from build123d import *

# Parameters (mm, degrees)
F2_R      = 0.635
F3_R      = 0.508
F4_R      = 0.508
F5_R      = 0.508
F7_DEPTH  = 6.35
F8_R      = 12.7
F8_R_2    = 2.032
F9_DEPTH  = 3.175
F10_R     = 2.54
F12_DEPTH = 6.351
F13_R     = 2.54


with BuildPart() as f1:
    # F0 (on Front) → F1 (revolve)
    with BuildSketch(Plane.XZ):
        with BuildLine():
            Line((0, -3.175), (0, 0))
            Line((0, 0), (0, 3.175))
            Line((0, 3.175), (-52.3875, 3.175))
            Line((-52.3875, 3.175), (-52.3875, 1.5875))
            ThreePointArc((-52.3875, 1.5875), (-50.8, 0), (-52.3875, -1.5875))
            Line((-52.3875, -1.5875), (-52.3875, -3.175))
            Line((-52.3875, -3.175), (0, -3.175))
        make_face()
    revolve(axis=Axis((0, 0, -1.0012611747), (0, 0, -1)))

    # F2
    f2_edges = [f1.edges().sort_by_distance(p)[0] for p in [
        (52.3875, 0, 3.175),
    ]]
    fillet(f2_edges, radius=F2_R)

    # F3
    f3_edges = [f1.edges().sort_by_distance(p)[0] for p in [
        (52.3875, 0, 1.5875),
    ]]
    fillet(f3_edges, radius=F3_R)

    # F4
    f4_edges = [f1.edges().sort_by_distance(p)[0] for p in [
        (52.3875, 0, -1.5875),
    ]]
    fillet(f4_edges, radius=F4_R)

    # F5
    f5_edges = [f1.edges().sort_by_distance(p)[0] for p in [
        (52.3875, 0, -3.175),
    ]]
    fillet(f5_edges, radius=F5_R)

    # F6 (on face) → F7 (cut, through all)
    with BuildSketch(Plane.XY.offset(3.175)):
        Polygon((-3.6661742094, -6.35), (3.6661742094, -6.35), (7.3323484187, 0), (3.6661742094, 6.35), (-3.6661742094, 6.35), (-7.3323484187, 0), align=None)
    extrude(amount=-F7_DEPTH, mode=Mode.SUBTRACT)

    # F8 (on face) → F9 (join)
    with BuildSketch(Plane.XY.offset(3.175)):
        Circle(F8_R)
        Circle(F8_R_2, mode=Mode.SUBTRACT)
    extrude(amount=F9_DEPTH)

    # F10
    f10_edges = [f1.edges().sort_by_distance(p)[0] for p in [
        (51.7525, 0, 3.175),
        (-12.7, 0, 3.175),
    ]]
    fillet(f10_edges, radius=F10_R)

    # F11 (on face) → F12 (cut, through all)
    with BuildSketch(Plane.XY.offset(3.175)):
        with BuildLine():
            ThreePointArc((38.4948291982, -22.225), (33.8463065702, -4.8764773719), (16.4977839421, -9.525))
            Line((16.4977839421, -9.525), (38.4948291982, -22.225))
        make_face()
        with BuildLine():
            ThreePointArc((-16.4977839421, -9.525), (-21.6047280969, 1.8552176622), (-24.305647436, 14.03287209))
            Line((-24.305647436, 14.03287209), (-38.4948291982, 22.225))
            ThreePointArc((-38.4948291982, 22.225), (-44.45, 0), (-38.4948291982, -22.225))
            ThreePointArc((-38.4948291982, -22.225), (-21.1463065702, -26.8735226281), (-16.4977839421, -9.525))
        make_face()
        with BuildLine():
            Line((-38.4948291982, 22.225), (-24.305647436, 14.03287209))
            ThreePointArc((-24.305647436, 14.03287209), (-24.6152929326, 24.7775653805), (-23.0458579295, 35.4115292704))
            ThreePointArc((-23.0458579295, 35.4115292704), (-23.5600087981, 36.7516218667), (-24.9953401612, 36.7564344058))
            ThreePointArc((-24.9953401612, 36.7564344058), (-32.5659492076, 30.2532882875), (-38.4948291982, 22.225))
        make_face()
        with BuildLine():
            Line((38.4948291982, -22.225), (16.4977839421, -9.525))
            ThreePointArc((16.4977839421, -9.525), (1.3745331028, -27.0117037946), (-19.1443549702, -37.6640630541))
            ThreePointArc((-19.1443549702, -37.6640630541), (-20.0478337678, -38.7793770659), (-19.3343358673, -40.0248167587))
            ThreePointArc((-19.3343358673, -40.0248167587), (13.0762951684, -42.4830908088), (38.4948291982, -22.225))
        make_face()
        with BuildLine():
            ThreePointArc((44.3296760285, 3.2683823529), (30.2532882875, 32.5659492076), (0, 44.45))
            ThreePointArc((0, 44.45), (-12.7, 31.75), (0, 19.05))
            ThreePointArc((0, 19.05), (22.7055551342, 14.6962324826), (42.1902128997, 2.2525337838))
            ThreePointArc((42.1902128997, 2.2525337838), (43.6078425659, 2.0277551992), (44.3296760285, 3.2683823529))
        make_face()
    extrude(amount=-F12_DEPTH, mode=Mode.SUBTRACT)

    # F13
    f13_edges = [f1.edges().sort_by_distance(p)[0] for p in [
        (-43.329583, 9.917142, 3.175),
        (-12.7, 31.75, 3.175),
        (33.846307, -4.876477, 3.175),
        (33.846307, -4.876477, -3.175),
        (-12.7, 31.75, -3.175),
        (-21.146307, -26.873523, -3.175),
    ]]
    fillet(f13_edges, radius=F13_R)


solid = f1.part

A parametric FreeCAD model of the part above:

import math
import FreeCAD as App
import Part
import Sketcher
Q = App.Units.Quantity


def edges_at(feature, points):
    """Names of the edges that pass closest to the given points."""
    edges = feature.Shape.Edges
    near = lambda p: min(range(len(edges)), key=lambda i: edges[i].distToShape(Part.Vertex(*p))[0])
    return sorted({f"Edge{near(p) + 1}" for p in points})


def add_polygon(sketch, points):
    """Adds a closed chain of lines whose ends are joined by coincident constraints."""
    first, n = sketch.GeometryCount, len(points)
    for a, b in zip(points, points[1:] + points[:1]):
        sketch.addGeometry(Part.LineSegment(App.Vector(*a, 0), App.Vector(*b, 0)), False)
    for i in range(n):
        sketch.addConstraint(Sketcher.Constraint("Coincident", first + i, 2, first + (i + 1) % n, 1))

doc = App.newDocument("Part")
params = doc.addObject("Spreadsheet::Sheet", "Params")
for row, (alias, value) in enumerate([
    ("sketch1_radius", "0.0625 in"),
    ("sketch1_height", "0.25 in"),
    ("sketch1_width", "2.0625 in"),
    ("revolution_angle", "360 deg"),
    ("fillet_radius", "0.025 in"),
    ("fillet2_radius", "0.02 in"),
    ("fillet3_radius", "0.02 in"),
    ("fillet4_radius", "0.02 in"),
    ("sketch3_diameter", "1 in"),
    ("sketch3_diameter2", "0.16 in"),
    ("pad1_length", "0.125 in"),
    ("fillet5_radius", "0.1 in"),
    ("sketch4_radius", "0.5 in"),
    ("sketch4_radius2", "0.05 in"),
    ("sketch4_radius3", "1.75 in"),
    ("fillet6_radius", "0.1 in"),
], start=1):
    params.set(f"A{row}", alias)
    params.set(f"B{row}", "=" + value)
    params.setAlias(f"B{row}", alias)

body = doc.addObject("PartDesign::Body", "Body")

# Sketch on XZ plane
sketch1 = body.newObject("Sketcher::SketchObject", "Sketch")
sketch1.AttachmentSupport = (doc.getObject("XZ_Plane"), [""])
sketch1.MapMode = "FlatFace"
sketch1.addGeometry(Part.LineSegment(App.Vector(0, -3.2, 0), App.Vector(0, 3.2, 0)), False)
sketch1.addGeometry(Part.LineSegment(App.Vector(0, 3.2, 0), App.Vector(-52.4, 3.2, 0)), False)
sketch1.addGeometry(Part.LineSegment(App.Vector(-52.4, 3.2, 0), App.Vector(-52.4, 1.6, 0)), False)
sketch1.addGeometry(Part.ArcOfCircle(Part.Circle(App.Vector(-52.4, 0, 0), App.Vector(0, 0, 1), 1.6), math.radians(-90), math.radians(90)), False)
sketch1.addGeometry(Part.LineSegment(App.Vector(-52.4, -1.6, 0), App.Vector(-52.4, -3.2, 0)), False)
sketch1.addGeometry(Part.LineSegment(App.Vector(-52.4, -3.2, 0), App.Vector(0, -3.2, 0)), False)
sketch1.addConstraint(Sketcher.Constraint("Coincident", 0, 2, 1, 1))
sketch1.addConstraint(Sketcher.Constraint("Coincident", 1, 2, 2, 1))
sketch1.addConstraint(Sketcher.Constraint("Coincident", 2, 2, 3, 2))
sketch1.addConstraint(Sketcher.Constraint("Coincident", 3, 1, 4, 1))
sketch1.addConstraint(Sketcher.Constraint("Coincident", 4, 2, 5, 1))
sketch1.addConstraint(Sketcher.Constraint("Coincident", 5, 2, 0, 1))
sketch1.addConstraint(Sketcher.Constraint("Vertical", 0))
sketch1.addConstraint(Sketcher.Constraint("Horizontal", 1))
sketch1.addConstraint(Sketcher.Constraint("Vertical", 2))
sketch1.addConstraint(Sketcher.Constraint("Vertical", 4))
sketch1.addConstraint(Sketcher.Constraint("Horizontal", 5))
sketch1.addConstraint(Sketcher.Constraint("Symmetric", 0, 2, 5, 2, -1, 1))
sketch1.addConstraint(Sketcher.Constraint("Symmetric", 2, 2, 3, 1, -1))
sketch1.addConstraint(Sketcher.Constraint("Vertical", 3, 3, 1, 2))
sketch1.addConstraint(Sketcher.Constraint("Radius", 3, Q("0.0625 in")))
sketch1.addConstraint(Sketcher.Constraint("DistanceY", 0, 1, 0, 2, Q("0.25 in")))
sketch1.addConstraint(Sketcher.Constraint("DistanceX", 1, 2, 1, 1, Q("2.0625 in")))
sketch1.setExpression("Constraints[14]", "Params.sketch1_radius")
sketch1.setExpression("Constraints[15]", "Params.sketch1_height")
sketch1.setExpression("Constraints[16]", "Params.sketch1_width")
revolution = body.newObject("PartDesign::Revolution", "Revolution")
revolution.Profile = sketch1
revolution.ReferenceAxis = (sketch1, ["V_Axis"])
revolution.setExpression("Angle", "Params.revolution_angle")
doc.recompute()

fillet = body.newObject("PartDesign::Fillet", "Fillet")
fillet.Base = (revolution, edges_at(revolution, [(52.388, 0, 3.175)]))
fillet.setExpression("Radius", "Params.fillet_radius")
doc.recompute()

fillet2 = body.newObject("PartDesign::Fillet", "Fillet001")
fillet2.Base = (fillet, edges_at(fillet, [(52.388, 0, 1.587)]))
fillet2.setExpression("Radius", "Params.fillet2_radius")
doc.recompute()

fillet3 = body.newObject("PartDesign::Fillet", "Fillet002")
fillet3.Base = (fillet2, edges_at(fillet2, [(52.388, 0, -1.587)]))
fillet3.setExpression("Radius", "Params.fillet3_radius")
doc.recompute()

fillet4 = body.newObject("PartDesign::Fillet", "Fillet003")
fillet4.Base = (fillet3, edges_at(fillet3, [(52.388, 0, -3.175)]))
fillet4.setExpression("Radius", "Params.fillet4_radius")

# Sketch on XY plane
sketch2 = body.newObject("Sketcher::SketchObject", "Sketch001")
sketch2.AttachmentSupport = (doc.getObject("XY_Plane"), [""])
sketch2.MapMode = "FlatFace"
sketch2.AttachmentOffset = App.Placement(App.Vector(0, 0, 0.125 * 25.4), App.Rotation())
add_polygon(sketch2, [(-4, -6), (4, -6), (7, 0), (4, 6), (-4, 6), (-7, 0)])  # lines 0-5
sketch2.addConstraint(Sketcher.Constraint("Horizontal", 0))
sketch2.addConstraint(Sketcher.Constraint("Horizontal", 3))
sketch2.addConstraint(Sketcher.Constraint("Symmetric", 0, 2, 3, 2, -1, 1))
sketch2.addConstraint(Sketcher.Constraint("Symmetric", 1, 2, 4, 2, -1, 1))
sketch2.addConstraint(Sketcher.Constraint("PointOnObject", 1, 2, -1))
sketch2.addConstraint(Sketcher.Constraint("Parallel", 2, 5))
sketch2.addConstraint(Sketcher.Constraint("Vertical", 0, 2, 2, 2))
sketch2.addConstraint(Sketcher.Constraint("Angle", 1, Q("60 deg")))
sketch2.addConstraint(Sketcher.Constraint("DistanceY", 0, 2, 2, 2, Q("0.5 in")))
sketch2.addConstraint(Sketcher.Constraint("DistanceX", 0, 1, 0, 2, Q("7.332348 mm")))
pocket1 = body.newObject("PartDesign::Pocket", "Pocket")
pocket1.Profile = sketch2
pocket1.Type = "ThroughAll"

# Sketch on XY plane
sketch3 = body.newObject("Sketcher::SketchObject", "Sketch002")
sketch3.AttachmentSupport = (doc.getObject("XY_Plane"), [""])
sketch3.MapMode = "FlatFace"
sketch3.AttachmentOffset = App.Placement(App.Vector(0, 0, 0.125 * 25.4), App.Rotation())
sketch3.addGeometry(Part.Circle(App.Vector(0, 0, 0), App.Vector(0, 0, 1), 12.7), False)
sketch3.addGeometry(Part.Circle(App.Vector(0, 0, 0), App.Vector(0, 0, 1), 2), False)
sketch3.addConstraint(Sketcher.Constraint("Coincident", 0, 3, -1, 1))
sketch3.addConstraint(Sketcher.Constraint("Coincident", 1, 3, -1, 1))
sketch3.addConstraint(Sketcher.Constraint("Diameter", 0, Q("1 in")))
sketch3.addConstraint(Sketcher.Constraint("Diameter", 1, Q("0.16 in")))
sketch3.setExpression("Constraints[2]", "Params.sketch3_diameter")
sketch3.setExpression("Constraints[3]", "Params.sketch3_diameter2")
pad1 = body.newObject("PartDesign::Pad", "Pad")
pad1.Profile = sketch3
pad1.setExpression("Length", "Params.pad1_length")
doc.recompute()

fillet5 = body.newObject("PartDesign::Fillet", "Fillet004")
fillet5.Base = (pad1, edges_at(pad1, [(51.752, 0, 3.175), (-12.7, 0, 3.175)]))
fillet5.setExpression("Radius", "Params.fillet5_radius")

# Sketch on XY plane
sketch4 = body.newObject("Sketcher::SketchObject", "Sketch003")
sketch4.AttachmentSupport = (doc.getObject("XY_Plane"), [""])
sketch4.MapMode = "FlatFace"
sketch4.AttachmentOffset = App.Placement(App.Vector(0, 0, 0.125 * 25.4), App.Rotation())
sketch4.addGeometry(Part.ArcOfCircle(Part.Circle(App.Vector(27.5, -15.9, 0), App.Vector(0, 0, 1), 12.7), math.radians(-30), math.radians(150)), False)
sketch4.addGeometry(Part.ArcOfCircle(Part.Circle(App.Vector(-36.7, 21.2, 0), App.Vector(0, 0, 1), 61.4), math.radians(-73), math.radians(-30)), False)
sketch4.addGeometry(Part.ArcOfCircle(Part.Circle(App.Vector(-18.8, -38.9, 0), App.Vector(0, 0, 1), 1.3), math.radians(107), math.radians(244)), False)
sketch4.addGeometry(Part.ArcOfCircle(Part.Circle(App.Vector(0, 0, 0), App.Vector(0, 0, 1), 44.5), math.radians(-116), math.radians(-30)), False)
sketch4.addGeometry(Part.ArcOfCircle(Part.Circle(App.Vector(36.7, 21.2, 0), App.Vector(0, 0, 1), 61.4), math.radians(-173), math.radians(-150)), False)
sketch4.addGeometry(Part.ArcOfCircle(Part.Circle(App.Vector(36.7, 21.2, 0), App.Vector(0, 0, 1), 61.4), math.radians(167), math.radians(187)), False)
sketch4.addGeometry(Part.ArcOfCircle(Part.Circle(App.Vector(-24.3, 35.7, 0), App.Vector(0, 0, 1), 1.3), math.radians(-13), math.radians(124)), False)
sketch4.addGeometry(Part.ArcOfCircle(Part.Circle(App.Vector(0, 0, 0), App.Vector(0, 0, 1), 44.5), math.radians(124), math.radians(210)), False)
sketch4.addGeometry(Part.ArcOfCircle(Part.Circle(App.Vector(-27.5, -15.9, 0), App.Vector(0, 0, 1), 12.7), math.radians(-150), math.radians(30)), False)
sketch4.addGeometry(Part.ArcOfCircle(Part.Circle(App.Vector(0, 0, 0), App.Vector(0, 0, 1), 44.5), math.radians(4), math.radians(90)), False)
sketch4.addGeometry(Part.ArcOfCircle(Part.Circle(App.Vector(0, 31.8, 0), App.Vector(0, 0, 1), 12.7), math.radians(90), math.radians(270)), False)
sketch4.addGeometry(Part.ArcOfCircle(Part.Circle(App.Vector(0, -42.3, 0), App.Vector(0, 0, 1), 61.4), math.radians(47), math.radians(90)), False)
sketch4.addGeometry(Part.ArcOfCircle(Part.Circle(App.Vector(43.1, 3.2, 0), App.Vector(0, 0, 1), 1.3), math.radians(-133), math.radians(4)), False)
sketch4.addConstraint(Sketcher.Constraint("Tangent", 0, 2, 1, 2))
sketch4.addConstraint(Sketcher.Constraint("Tangent", 1, 1, 2, 1))
sketch4.addConstraint(Sketcher.Constraint("Tangent", 2, 2, 3, 1))
sketch4.addConstraint(Sketcher.Constraint("Tangent", 3, 2, 0, 1))
sketch4.addConstraint(Sketcher.Constraint("Tangent", 4, 1, 5, 2))
sketch4.addConstraint(Sketcher.Constraint("Tangent", 5, 1, 6, 1))
sketch4.addConstraint(Sketcher.Constraint("Tangent", 6, 2, 7, 1))
sketch4.addConstraint(Sketcher.Constraint("Tangent", 7, 2, 8, 1))
sketch4.addConstraint(Sketcher.Constraint("Tangent", 8, 2, 4, 2))
sketch4.addConstraint(Sketcher.Constraint("Tangent", 9, 2, 10, 1))
sketch4.addConstraint(Sketcher.Constraint("Tangent", 10, 2, 11, 2))
sketch4.addConstraint(Sketcher.Constraint("Tangent", 11, 1, 12, 1))
sketch4.addConstraint(Sketcher.Constraint("Tangent", 12, 2, 9, 1))
sketch4.addConstraint(Sketcher.Constraint("Coincident", 3, 3, -1, 1))
sketch4.addConstraint(Sketcher.Constraint("Coincident", 7, 3, -1, 1))
sketch4.addConstraint(Sketcher.Constraint("Coincident", 9, 3, -1, 1))
sketch4.addConstraint(Sketcher.Constraint("Equal", 1, 4))
sketch4.addConstraint(Sketcher.Constraint("Equal", 4, 5))
sketch4.addConstraint(Sketcher.Constraint("Equal", 2, 6))
sketch4.addConstraint(Sketcher.Constraint("Equal", 3, 7))
sketch4.addConstraint(Sketcher.Constraint("Equal", 0, 8))
sketch4.addConstraint(Sketcher.Constraint("Equal", 7, 9))
sketch4.addConstraint(Sketcher.Constraint("Equal", 8, 10))
sketch4.addConstraint(Sketcher.Constraint("Equal", 5, 11))
sketch4.addConstraint(Sketcher.Constraint("Equal", 6, 12))
sketch4.addConstraint(Sketcher.Constraint("PointOnObject", 10, 3, -2))
sketch4.addConstraint(Sketcher.Constraint("PointOnObject", 11, 3, -2))
sketch4.addConstraint(Sketcher.Constraint("Horizontal", 1, 3, 4, 3))
sketch4.addConstraint(Sketcher.Constraint("Horizontal", 0, 3, 8, 3))
sketch4.addConstraint(Sketcher.Constraint("Radius", 0, Q("0.5 in")))
sketch4.addConstraint(Sketcher.Constraint("Radius", 2, Q("0.05 in")))
sketch4.addConstraint(Sketcher.Constraint("Radius", 3, Q("1.75 in")))
sketch4.addConstraint(Sketcher.Constraint("DistanceY", 3, 2, 12, 3, Q("1 in")))
sketch4.addConstraint(Sketcher.Constraint("DistanceY", 0, 2, 12, 3, Q("0.5 in")))
sketch4.addConstraint(Sketcher.Constraint("DistanceY", 0, 3, 12, 3, Q("0.75 in")))
sketch4.addConstraint(Sketcher.Constraint("DistanceX", 4, 1, 6, 3, Q("0.02446 mm")))
sketch4.setExpression("Constraints[29]", "Params.sketch4_radius")
sketch4.setExpression("Constraints[30]", "Params.sketch4_radius2")
sketch4.setExpression("Constraints[31]", "Params.sketch4_radius3")
pocket2 = body.newObject("PartDesign::Pocket", "Pocket001")
pocket2.Profile = sketch4
pocket2.Type = "ThroughAll"
doc.recompute()

fillet6 = body.newObject("PartDesign::Fillet", "Fillet005")
fillet6.Base = (pocket2, edges_at(pocket2, [
    (-43.33, 9.917, 3.175),
    (-12.7, 31.75, 3.175),
    (33.846, -4.876, 3.175),
    (33.846, -4.876, -3.175),
    (-12.7, 31.75, -3.175),
    (-21.146, -26.874, -3.175),
]))
fillet6.setExpression("Radius", "Params.fillet6_radius")

doc.recompute()
